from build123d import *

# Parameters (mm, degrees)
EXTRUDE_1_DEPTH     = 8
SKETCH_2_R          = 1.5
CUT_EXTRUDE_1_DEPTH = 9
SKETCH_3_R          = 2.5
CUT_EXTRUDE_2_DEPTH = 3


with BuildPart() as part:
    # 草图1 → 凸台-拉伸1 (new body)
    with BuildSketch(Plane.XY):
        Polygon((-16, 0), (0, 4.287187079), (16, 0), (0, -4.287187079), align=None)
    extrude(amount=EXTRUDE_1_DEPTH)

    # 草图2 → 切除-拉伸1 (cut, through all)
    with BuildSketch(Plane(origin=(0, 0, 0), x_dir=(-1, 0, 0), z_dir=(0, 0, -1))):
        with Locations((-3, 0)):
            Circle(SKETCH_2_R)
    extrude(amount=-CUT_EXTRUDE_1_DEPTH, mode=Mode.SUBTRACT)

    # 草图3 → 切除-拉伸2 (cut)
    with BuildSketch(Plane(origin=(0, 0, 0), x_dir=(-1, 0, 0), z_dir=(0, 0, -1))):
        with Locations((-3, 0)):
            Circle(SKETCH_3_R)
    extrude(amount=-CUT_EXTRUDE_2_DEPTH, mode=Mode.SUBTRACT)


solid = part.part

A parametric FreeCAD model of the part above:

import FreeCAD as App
import Part
import Sketcher

V = App.Vector
Q = App.Units.Quantity


def add_polygon(sketch, points):
    """Adds a closed chain of lines whose ends are joined by coincident constraints."""
    first, n = sketch.GeometryCount, len(points)
    for a, b in zip(points, points[1:] + points[:1]):
        sketch.addGeometry(Part.LineSegment(App.Vector(*a, 0), App.Vector(*b, 0)), False)
    for i in range(n):
        sketch.addConstraint(Sketcher.Constraint("Coincident", first + i, 2, first + (i + 1) % n, 1))

doc = App.newDocument("Part")
body = doc.addObject("PartDesign::Body", "Body")

sketch1 = body.newObject("Sketcher::SketchObject", "Sketch")
sketch1.AttachmentSupport = (doc.getObject("XY_Plane"), [""])
sketch1.MapMode = "FlatFace"
add_polygon(sketch1, [(0, 4.287187), (-16, 0), (0, -4.287187), (16, 0)])
sketch1.addConstraint([
    Sketcher.Constraint("Symmetric", 0, 2, 2, 2, -1, 1),
    Sketcher.Constraint("Symmetric", 1, 2, 3, 2, -1, 1),
    Sketcher.Constraint("PointOnObject", 0, 2, -1),
    Sketcher.Constraint("PointOnObject", 1, 2, -2),
    Sketcher.Constraint("Angle", 0, Q("-165 deg")),
    Sketcher.Constraint("DistanceX", 0, 2, -1, 1, Q("16 mm")),
])
pad1 = body.newObject("PartDesign::Pad", "Pad")
pad1.Profile = sketch1
pad1.Length = 8

sketch2 = body.newObject("Sketcher::SketchObject", "Sketch001")
sketch2.AttachmentSupport = (doc.getObject("XY_Plane"), [""])
sketch2.MapMode = "FlatFace"
sketch2.addGeometry(Part.Circle(V(3, 0, 0), V(0, 0, 1), 1.5), False)
sketch2.addConstraint([
    Sketcher.Constraint("PointOnObject", 0, 3, -1),
    Sketcher.Constraint("Diameter", 0, Q("3 mm")),
    Sketcher.Constraint("DistanceX", -1, 1, 0, 3, Q("3 mm")),
])
pocket1 = body.newObject("PartDesign::Pocket", "Pocket")
pocket1.Profile = sketch2
pocket1.Type = "ThroughAll"
pocket1.Reversed = True

sketch3 = body.newObject("Sketcher::SketchObject", "Sketch002")
sketch3.AttachmentSupport = (doc.getObject("XY_Plane"), [""])
sketch3.MapMode = "FlatFace"
sketch3.addGeometry(Part.Circle(V(3, 0, 0), V(0, 0, 1), 2.5), False)
sketch3.addConstraint([
    Sketcher.Constraint("PointOnObject", 0, 3, -1),
    Sketcher.Constraint("Diameter", 0, Q("5 mm")),
    Sketcher.Constraint("DistanceX", -1, 1, 0, 3, Q("3 mm")),
])
pocket2 = body.newObject("PartDesign::Pocket", "Pocket001")
pocket2.Profile = sketch3
pocket2.Length = 3
pocket2.Reversed = True

doc.recompute()
